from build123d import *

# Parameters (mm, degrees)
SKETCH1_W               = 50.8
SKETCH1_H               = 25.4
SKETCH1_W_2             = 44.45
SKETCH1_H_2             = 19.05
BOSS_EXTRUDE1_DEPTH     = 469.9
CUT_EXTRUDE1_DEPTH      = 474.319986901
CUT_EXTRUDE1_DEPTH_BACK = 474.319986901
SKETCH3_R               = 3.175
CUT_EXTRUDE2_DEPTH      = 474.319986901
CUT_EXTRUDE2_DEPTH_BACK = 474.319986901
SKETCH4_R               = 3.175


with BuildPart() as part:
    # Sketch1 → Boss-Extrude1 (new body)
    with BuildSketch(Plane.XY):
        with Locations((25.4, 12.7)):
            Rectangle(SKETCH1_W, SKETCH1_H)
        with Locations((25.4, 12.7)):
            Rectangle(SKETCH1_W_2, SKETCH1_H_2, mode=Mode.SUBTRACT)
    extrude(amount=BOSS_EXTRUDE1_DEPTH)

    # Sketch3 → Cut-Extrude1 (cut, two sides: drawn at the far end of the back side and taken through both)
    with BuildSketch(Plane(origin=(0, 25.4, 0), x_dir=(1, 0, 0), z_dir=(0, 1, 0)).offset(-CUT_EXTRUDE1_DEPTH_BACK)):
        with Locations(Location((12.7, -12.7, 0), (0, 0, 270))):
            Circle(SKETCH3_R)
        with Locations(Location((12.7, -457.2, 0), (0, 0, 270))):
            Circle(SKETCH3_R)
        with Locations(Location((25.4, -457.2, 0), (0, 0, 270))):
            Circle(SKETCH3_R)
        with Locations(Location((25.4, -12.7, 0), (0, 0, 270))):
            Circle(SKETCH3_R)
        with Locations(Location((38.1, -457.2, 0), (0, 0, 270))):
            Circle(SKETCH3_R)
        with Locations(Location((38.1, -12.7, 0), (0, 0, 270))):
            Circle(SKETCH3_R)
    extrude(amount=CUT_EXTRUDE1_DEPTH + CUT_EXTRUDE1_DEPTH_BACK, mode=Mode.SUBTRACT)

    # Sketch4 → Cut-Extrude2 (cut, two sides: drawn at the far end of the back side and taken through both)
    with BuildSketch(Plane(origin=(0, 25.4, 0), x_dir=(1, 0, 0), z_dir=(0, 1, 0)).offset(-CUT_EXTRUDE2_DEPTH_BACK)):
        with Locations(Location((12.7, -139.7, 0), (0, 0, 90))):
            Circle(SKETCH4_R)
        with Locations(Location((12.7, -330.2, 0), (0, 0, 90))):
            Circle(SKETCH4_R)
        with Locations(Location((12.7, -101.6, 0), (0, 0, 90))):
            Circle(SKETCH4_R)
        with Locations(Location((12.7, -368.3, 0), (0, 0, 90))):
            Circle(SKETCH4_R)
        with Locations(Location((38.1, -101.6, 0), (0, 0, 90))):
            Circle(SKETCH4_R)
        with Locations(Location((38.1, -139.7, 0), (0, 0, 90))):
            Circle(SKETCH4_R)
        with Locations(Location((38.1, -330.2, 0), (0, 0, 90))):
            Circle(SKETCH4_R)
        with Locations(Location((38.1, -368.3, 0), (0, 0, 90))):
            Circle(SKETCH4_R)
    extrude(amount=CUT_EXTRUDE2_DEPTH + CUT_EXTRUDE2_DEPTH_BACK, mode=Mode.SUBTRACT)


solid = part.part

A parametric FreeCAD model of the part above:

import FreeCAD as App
import Part
import Sketcher
from FreeCAD import Vector
Q = App.Units.Quantity

doc = App.newDocument("Part")
params = doc.addObject("Spreadsheet::Sheet", "Params")
for row, (alias, value) in enumerate([
    ("sketch1_width", "2 in"),
    ("sketch1_height", "1 in"),
    ("sketch1_width2", "1.75 in"),
    ("sketch1_height2", "0.75 in"),
    ("pad1_length", "18.5 in"),
    ("sketch2_diameter", "0.25 in"),
    ("sketch3_diameter", "0.25 in"),
], start=1):
    params.set(f"A{row}", alias)
    params.set(f"B{row}", "=" + value)
    params.setAlias(f"B{row}", alias)

body = doc.addObject("PartDesign::Body", "Body")

# Sketch on XY plane
sketch1 = body.newObject("Sketcher::SketchObject", "Sketch")
sketch1.AttachmentSupport = (doc.getObject("XY_Plane"), [""])
sketch1.MapMode = "FlatFace"
sketch1.addGeometry([
    Part.LineSegment(Vector(0, 25, 0), Vector(0, 0, 0)),  # 0
    Part.LineSegment(Vector(0, 0, 0), Vector(51, 0, 0)),  # 1
    Part.LineSegment(Vector(51, 0, 0), Vector(51, 25, 0)),  # 2
    Part.LineSegment(Vector(51, 25, 0), Vector(0, 25, 0)),  # 3
    Part.LineSegment(Vector(48, 3, 0), Vector(3, 3, 0)),  # 4
    Part.LineSegment(Vector(3, 3, 0), Vector(3, 22, 0)),  # 5
    Part.LineSegment(Vector(3, 22, 0), Vector(48, 22, 0)),  # 6
    Part.LineSegment(Vector(48, 22, 0), Vector(48, 3, 0)),  # 7
], False)
sketch1.addConstraint([
    Sketcher.Constraint("Coincident", 0, 2, 1, 1),
    Sketcher.Constraint("Coincident", 1, 2, 2, 1),
    Sketcher.Constraint("Coincident", 2, 2, 3, 1),
    Sketcher.Constraint("Coincident", 3, 2, 0, 1),
    Sketcher.Constraint("Coincident", 4, 2, 5, 1),
    Sketcher.Constraint("Coincident", 5, 2, 6, 1),
    Sketcher.Constraint("Coincident", 6, 2, 7, 1),
    Sketcher.Constraint("Coincident", 7, 2, 4, 1),
    Sketcher.Constraint("Vertical", 0),
    Sketcher.Constraint("Horizontal", 1),
    Sketcher.Constraint("Vertical", 2),
    Sketcher.Constraint("Horizontal", 3),
    Sketcher.Constraint("Horizontal", 4),
    Sketcher.Constraint("Vertical", 5),
    Sketcher.Constraint("Horizontal", 6),
    Sketcher.Constraint("Vertical", 7),
    Sketcher.Constraint("Coincident", 0, 2, -1, 1),
    Sketcher.Constraint("DistanceX", 1, 1, 1, 2, Q("2 in")),
    Sketcher.Constraint("DistanceY", 0, 2, 0, 1, Q("1 in")),
    Sketcher.Constraint("DistanceX", 4, 2, 4, 1, Q("1.75 in")),
    Sketcher.Constraint("DistanceY", 5, 1, 5, 2, Q("0.75 in")),
    Sketcher.Constraint("DistanceX", -1, 1, 4, 2, Q("0.125 in")),
    Sketcher.Constraint("DistanceY", -1, 1, 4, 2, Q("0.125 in")),
])
sketch1.setExpression("Constraints[17]", "Params.sketch1_width")
sketch1.setExpression("Constraints[18]", "Params.sketch1_height")
sketch1.setExpression("Constraints[19]", "Params.sketch1_width2")
sketch1.setExpression("Constraints[20]", "Params.sketch1_height2")
pad1 = body.newObject("PartDesign::Pad", "Pad")
pad1.Profile = sketch1
pad1.setExpression("Length", "Params.pad1_length")

# Sketch on XZ plane
sketch2 = body.newObject("Sketcher::SketchObject", "Sketch001")
sketch2.AttachmentSupport = (doc.getObject("XZ_Plane"), [""])
sketch2.MapMode = "FlatFace"
sketch2.AttachmentOffset = App.Placement(Vector(0, 0, -1 * 25.4), App.Rotation())
sketch2.addGeometry([
    Part.Circle(Vector(12.7, 12.7, 0), Vector(0, 0, 1), 3.2),  # 0
    Part.Circle(Vector(12.7, 457.2, 0), Vector(0, 0, 1), 3.2),  # 1
    Part.Circle(Vector(25.4, 457.2, 0), Vector(0, 0, 1), 3.2),  # 2
    Part.Circle(Vector(25.4, 12.7, 0), Vector(0, 0, 1), 3.2),  # 3
    Part.Circle(Vector(38.1, 457.2, 0), Vector(0, 0, 1), 3.2),  # 4
    Part.Circle(Vector(38.1, 12.7, 0), Vector(0, 0, 1), 3.2),  # 5
], False)
sketch2.addConstraint([
    Sketcher.Constraint("Equal", 0, 1),
    Sketcher.Constraint("Equal", 1, 2),
    Sketcher.Constraint("Equal", 2, 3),
    Sketcher.Constraint("Equal", 3, 4),
    Sketcher.Constraint("Equal", 4, 5),
    Sketcher.Constraint("Horizontal", 1, 3, 2, 3),
    Sketcher.Constraint("Horizontal", 0, 3, 3, 3),
    Sketcher.Constraint("Horizontal", 2, 3, 4, 3),
    Sketcher.Constraint("Horizontal", 3, 3, 5, 3),
    Sketcher.Constraint("Vertical", 0, 3, 1, 3),
    Sketcher.Constraint("Vertical", 2, 3, 3, 3),
    Sketcher.Constraint("Vertical", 4, 3, 5, 3),
    Sketcher.Constraint("Diameter", 0, Q("0.25 in")),
    Sketcher.Constraint("DistanceY", -1, 1, 1, 3, Q("18 in")),
    Sketcher.Constraint("DistanceX", -1, 1, 2, 3, Q("1 in")),
    Sketcher.Constraint("DistanceX", 1, 3, 4, 3, Q("1 in")),
    Sketcher.Constraint("DistanceX", -1, 1, 0, 3, Q("0.5 in")),
    Sketcher.Constraint("DistanceY", -1, 1, 0, 3, Q("0.5 in")),
])
sketch2.setExpression("Constraints[12]", "Params.sketch2_diameter")
pocket1 = body.newObject("PartDesign::Pocket", "Pocket")
pocket1.Profile = sketch2
pocket1.Type = "ThroughAll"
pocket1.Midplane = True

# Sketch on XZ plane
sketch3 = body.newObject("Sketcher::SketchObject", "Sketch002")
sketch3.AttachmentSupport = (doc.getObject("XZ_Plane"), [""])
sketch3.MapMode = "FlatFace"
sketch3.AttachmentOffset = App.Placement(Vector(0, 0, -1 * 25.4), App.Rotation())
sketch3.addGeometry([
    Part.Circle(Vector(12.7, 139.7, 0), Vector(0, 0, 1), 3.2),  # 0
    Part.Circle(Vector(12.7, 330.2, 0), Vector(0, 0, 1), 3.2),  # 1
    Part.Circle(Vector(12.7, 101.6, 0), Vector(0, 0, 1), 3.2),  # 2
    Part.Circle(Vector(12.7, 368.3, 0), Vector(0, 0, 1), 3.2),  # 3
    Part.Circle(Vector(38.1, 101.6, 0), Vector(0, 0, 1), 3.2),  # 4
    Part.Circle(Vector(38.1, 139.7, 0), Vector(0, 0, 1), 3.2),  # 5
    Part.Circle(Vector(38.1, 330.2, 0), Vector(0, 0, 1), 3.2),  # 6
    Part.Circle(Vector(38.1, 368.3, 0), Vector(0, 0, 1), 3.2),  # 7
], False)
sketch3.addConstraint([
    Sketcher.Constraint("Equal", 0, 1),
    Sketcher.Constraint("Equal", 1, 2),
    Sketcher.Constraint("Equal", 2, 3),
    Sketcher.Constraint("Equal", 3, 4),
    Sketcher.Constraint("Equal", 4, 5),
    Sketcher.Constraint("Equal", 5, 6),
    Sketcher.Constraint("Equal", 6, 7),
    Sketcher.Constraint("Horizontal", 2, 3, 4, 3),
    Sketcher.Constraint("Horizontal", 0, 3, 5, 3),
    Sketcher.Constraint("Horizontal", 1, 3, 6, 3),
    Sketcher.Constraint("Horizontal", 3, 3, 7, 3),
    Sketcher.Constraint("Vertical", 0, 3, 1, 3),
    Sketcher.Constraint("Vertical", 1, 3, 2, 3),
    Sketcher.Constraint("Vertical", 2, 3, 3, 3),
    Sketcher.Constraint("Vertical", 4, 3, 5, 3),
    Sketcher.Constraint("Vertical", 5, 3, 6, 3),
    Sketcher.Constraint("Vertical", 6, 3, 7, 3),
    Sketcher.Constraint("Diameter", 0, Q("0.25 in")),
    Sketcher.Constraint("DistanceY", -1, 1, 1, 3, Q("13 in")),
    Sketcher.Constraint("DistanceY", -1, 1, 2, 3, Q("4 in")),
    Sketcher.Constraint("DistanceY", 0, 3, 3, 3, Q("9 in")),
    Sketcher.Constraint("DistanceX", 2, 3, 4, 3, Q("1 in")),
    Sketcher.Constraint("DistanceX", -1, 1, 0, 3, Q("0.5 in")),
    Sketcher.Constraint("DistanceY", -1, 1, 0, 3, Q("5.5 in")),
])
sketch3.setExpression("Constraints[17]", "Params.sketch3_diameter")
pocket2 = body.newObject("PartDesign::Pocket", "Pocket001")
pocket2.Profile = sketch3
pocket2.Type = "ThroughAll"
pocket2.Midplane = True

doc.recompute()
